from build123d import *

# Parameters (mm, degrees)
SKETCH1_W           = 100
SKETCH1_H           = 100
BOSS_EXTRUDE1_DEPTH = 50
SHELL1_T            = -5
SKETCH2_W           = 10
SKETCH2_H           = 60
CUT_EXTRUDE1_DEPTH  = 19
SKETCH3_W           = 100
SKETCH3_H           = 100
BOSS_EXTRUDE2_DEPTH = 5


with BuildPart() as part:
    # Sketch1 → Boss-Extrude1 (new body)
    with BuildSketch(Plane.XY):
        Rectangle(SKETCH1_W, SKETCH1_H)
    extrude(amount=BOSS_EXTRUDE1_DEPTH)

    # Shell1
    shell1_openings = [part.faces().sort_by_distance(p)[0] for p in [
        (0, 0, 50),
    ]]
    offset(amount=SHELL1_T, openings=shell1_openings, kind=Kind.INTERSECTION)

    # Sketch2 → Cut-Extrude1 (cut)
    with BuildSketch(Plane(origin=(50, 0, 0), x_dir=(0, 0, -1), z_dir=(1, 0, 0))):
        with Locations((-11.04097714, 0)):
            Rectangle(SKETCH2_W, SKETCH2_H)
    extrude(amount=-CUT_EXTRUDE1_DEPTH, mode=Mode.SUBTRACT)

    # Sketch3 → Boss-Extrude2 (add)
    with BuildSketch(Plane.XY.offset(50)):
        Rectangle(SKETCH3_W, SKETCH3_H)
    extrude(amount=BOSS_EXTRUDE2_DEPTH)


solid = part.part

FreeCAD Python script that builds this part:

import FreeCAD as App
import Part
import Sketcher
from FreeCAD import Vector


def faces_at(feature, points):
    """Names of the faces that lie closest to the given points."""
    faces = feature.Shape.Faces
    near = lambda p: min(range(len(faces)), key=lambda i: faces[i].distToShape(Part.Vertex(*p))[0])
    return sorted({f"Face{near(p) + 1}" for p in points})

doc = App.newDocument("Part")
body = doc.addObject("PartDesign::Body", "Body")

# Sketch on XY plane
sketch1 = body.newObject("Sketcher::SketchObject", "Sketch")
sketch1.AttachmentSupport = (doc.getObject("XY_Plane"), [""])
sketch1.MapMode = "FlatFace"
sketch1.addGeometry([
    Part.LineSegment(Vector(-50, 50, 0), Vector(-50, -50, 0)),
    Part.LineSegment(Vector(-50, -50, 0), Vector(50, -50, 0)),
    Part.LineSegment(Vector(50, -50, 0), Vector(50, 50, 0)),
    Part.LineSegment(Vector(50, 50, 0), Vector(-50, 50, 0)),
], False)
sketch1.addConstraint([
    Sketcher.Constraint("Coincident", 0, 2, 1, 1),
    Sketcher.Constraint("Coincident", 1, 2, 2, 1),
    Sketcher.Constraint("Coincident", 2, 2, 3, 1),
    Sketcher.Constraint("Coincident", 3, 2, 0, 1),
    Sketcher.Constraint("Vertical", 0),
    Sketcher.Constraint("Horizontal", 1),
    Sketcher.Constraint("Vertical", 2),
    Sketcher.Constraint("Horizontal", 3),
    Sketcher.Constraint("Symmetric", 0, 2, 2, 2, -1, 1),
    Sketcher.Constraint("Equal", 3, 0),
    Sketcher.Constraint("DistanceX", 1, 1, 1, 2, 100.0),
])
pad1 = body.newObject("PartDesign::Pad", "Pad")
pad1.Profile = sketch1
pad1.Length = 50
doc.recompute()

thickness = body.newObject("PartDesign::Thickness", "Thickness")
thickness.Base = (pad1, faces_at(pad1, [(0, 0, 50)]))
thickness.Value = 5
thickness.Reversed = True
thickness.Join = "Intersection"

# Sketch on YZ plane
sketch2 = body.newObject("Sketcher::SketchObject", "Sketch001")
sketch2.AttachmentSupport = (doc.getObject("YZ_Plane"), [""])
sketch2.MapMode = "FlatFace"
sketch2.AttachmentOffset = App.Placement(Vector(0, 0, 50), App.Rotation())
sketch2.addGeometry([
    Part.LineSegment(Vector(30, 16, 0), Vector(-30, 16, 0)),
    Part.LineSegment(Vector(-30, 16, 0), Vector(-30, 6, 0)),
    Part.LineSegment(Vector(-30, 6, 0), Vector(30, 6, 0)),
    Part.LineSegment(Vector(30, 6, 0), Vector(30, 16, 0)),
], False)
sketch2.addConstraint([
    Sketcher.Constraint("Coincident", 0, 2, 1, 1),
    Sketcher.Constraint("Coincident", 1, 2, 2, 1),
    Sketcher.Constraint("Coincident", 2, 2, 3, 1),
    Sketcher.Constraint("Coincident", 3, 2, 0, 1),
    Sketcher.Constraint("Horizontal", 0),
    Sketcher.Constraint("Vertical", 1),
    Sketcher.Constraint("Horizontal", 2),
    Sketcher.Constraint("Vertical", 3),
    Sketcher.Constraint("DistanceX", 0, 2, 0, 1, 60.0),
    Sketcher.Constraint("DistanceY", 1, 2, 1, 1, 10.0),
    Sketcher.Constraint("DistanceX", 0, 2, -1, 1, 30.0),
    Sketcher.Constraint("DistanceY", -1, 1, 0, 2, 16.040977),
])
pocket1 = body.newObject("PartDesign::Pocket", "Pocket")
pocket1.Profile = sketch2
pocket1.Length = 19

# Sketch on XY plane
sketch3 = body.newObject("Sketcher::SketchObject", "Sketch002")
sketch3.AttachmentSupport = (doc.getObject("XY_Plane"), [""])
sketch3.MapMode = "FlatFace"
sketch3.AttachmentOffset = App.Placement(Vector(0, 0, 50), App.Rotation())
sketch3.addGeometry([
    Part.LineSegment(Vector(-50, 50, 0), Vector(-50, -50, 0)),
    Part.LineSegment(Vector(-50, -50, 0), Vector(50, -50, 0)),
    Part.LineSegment(Vector(50, -50, 0), Vector(50, 50, 0)),
    Part.LineSegment(Vector(50, 50, 0), Vector(-50, 50, 0)),
], False)
sketch3.addConstraint([
    Sketcher.Constraint("Coincident", 0, 2, 1, 1),
    Sketcher.Constraint("Coincident", 1, 2, 2, 1),
    Sketcher.Constraint("Coincident", 2, 2, 3, 1),
    Sketcher.Constraint("Coincident", 3, 2, 0, 1),
    Sketcher.Constraint("Vertical", 0),
    Sketcher.Constraint("Horizontal", 1),
    Sketcher.Constraint("Vertical", 2),
    Sketcher.Constraint("Horizontal", 3),
    Sketcher.Constraint("Symmetric", 0, 2, 2, 2, -1, 1),
    Sketcher.Constraint("Equal", 3, 0),
    Sketcher.Constraint("DistanceX", 1, 1, 1, 2, 100.0),
])
pad2 = body.newObject("PartDesign::Pad", "Pad001")
pad2.Profile = sketch3
pad2.Length = 5

doc.recompute()
